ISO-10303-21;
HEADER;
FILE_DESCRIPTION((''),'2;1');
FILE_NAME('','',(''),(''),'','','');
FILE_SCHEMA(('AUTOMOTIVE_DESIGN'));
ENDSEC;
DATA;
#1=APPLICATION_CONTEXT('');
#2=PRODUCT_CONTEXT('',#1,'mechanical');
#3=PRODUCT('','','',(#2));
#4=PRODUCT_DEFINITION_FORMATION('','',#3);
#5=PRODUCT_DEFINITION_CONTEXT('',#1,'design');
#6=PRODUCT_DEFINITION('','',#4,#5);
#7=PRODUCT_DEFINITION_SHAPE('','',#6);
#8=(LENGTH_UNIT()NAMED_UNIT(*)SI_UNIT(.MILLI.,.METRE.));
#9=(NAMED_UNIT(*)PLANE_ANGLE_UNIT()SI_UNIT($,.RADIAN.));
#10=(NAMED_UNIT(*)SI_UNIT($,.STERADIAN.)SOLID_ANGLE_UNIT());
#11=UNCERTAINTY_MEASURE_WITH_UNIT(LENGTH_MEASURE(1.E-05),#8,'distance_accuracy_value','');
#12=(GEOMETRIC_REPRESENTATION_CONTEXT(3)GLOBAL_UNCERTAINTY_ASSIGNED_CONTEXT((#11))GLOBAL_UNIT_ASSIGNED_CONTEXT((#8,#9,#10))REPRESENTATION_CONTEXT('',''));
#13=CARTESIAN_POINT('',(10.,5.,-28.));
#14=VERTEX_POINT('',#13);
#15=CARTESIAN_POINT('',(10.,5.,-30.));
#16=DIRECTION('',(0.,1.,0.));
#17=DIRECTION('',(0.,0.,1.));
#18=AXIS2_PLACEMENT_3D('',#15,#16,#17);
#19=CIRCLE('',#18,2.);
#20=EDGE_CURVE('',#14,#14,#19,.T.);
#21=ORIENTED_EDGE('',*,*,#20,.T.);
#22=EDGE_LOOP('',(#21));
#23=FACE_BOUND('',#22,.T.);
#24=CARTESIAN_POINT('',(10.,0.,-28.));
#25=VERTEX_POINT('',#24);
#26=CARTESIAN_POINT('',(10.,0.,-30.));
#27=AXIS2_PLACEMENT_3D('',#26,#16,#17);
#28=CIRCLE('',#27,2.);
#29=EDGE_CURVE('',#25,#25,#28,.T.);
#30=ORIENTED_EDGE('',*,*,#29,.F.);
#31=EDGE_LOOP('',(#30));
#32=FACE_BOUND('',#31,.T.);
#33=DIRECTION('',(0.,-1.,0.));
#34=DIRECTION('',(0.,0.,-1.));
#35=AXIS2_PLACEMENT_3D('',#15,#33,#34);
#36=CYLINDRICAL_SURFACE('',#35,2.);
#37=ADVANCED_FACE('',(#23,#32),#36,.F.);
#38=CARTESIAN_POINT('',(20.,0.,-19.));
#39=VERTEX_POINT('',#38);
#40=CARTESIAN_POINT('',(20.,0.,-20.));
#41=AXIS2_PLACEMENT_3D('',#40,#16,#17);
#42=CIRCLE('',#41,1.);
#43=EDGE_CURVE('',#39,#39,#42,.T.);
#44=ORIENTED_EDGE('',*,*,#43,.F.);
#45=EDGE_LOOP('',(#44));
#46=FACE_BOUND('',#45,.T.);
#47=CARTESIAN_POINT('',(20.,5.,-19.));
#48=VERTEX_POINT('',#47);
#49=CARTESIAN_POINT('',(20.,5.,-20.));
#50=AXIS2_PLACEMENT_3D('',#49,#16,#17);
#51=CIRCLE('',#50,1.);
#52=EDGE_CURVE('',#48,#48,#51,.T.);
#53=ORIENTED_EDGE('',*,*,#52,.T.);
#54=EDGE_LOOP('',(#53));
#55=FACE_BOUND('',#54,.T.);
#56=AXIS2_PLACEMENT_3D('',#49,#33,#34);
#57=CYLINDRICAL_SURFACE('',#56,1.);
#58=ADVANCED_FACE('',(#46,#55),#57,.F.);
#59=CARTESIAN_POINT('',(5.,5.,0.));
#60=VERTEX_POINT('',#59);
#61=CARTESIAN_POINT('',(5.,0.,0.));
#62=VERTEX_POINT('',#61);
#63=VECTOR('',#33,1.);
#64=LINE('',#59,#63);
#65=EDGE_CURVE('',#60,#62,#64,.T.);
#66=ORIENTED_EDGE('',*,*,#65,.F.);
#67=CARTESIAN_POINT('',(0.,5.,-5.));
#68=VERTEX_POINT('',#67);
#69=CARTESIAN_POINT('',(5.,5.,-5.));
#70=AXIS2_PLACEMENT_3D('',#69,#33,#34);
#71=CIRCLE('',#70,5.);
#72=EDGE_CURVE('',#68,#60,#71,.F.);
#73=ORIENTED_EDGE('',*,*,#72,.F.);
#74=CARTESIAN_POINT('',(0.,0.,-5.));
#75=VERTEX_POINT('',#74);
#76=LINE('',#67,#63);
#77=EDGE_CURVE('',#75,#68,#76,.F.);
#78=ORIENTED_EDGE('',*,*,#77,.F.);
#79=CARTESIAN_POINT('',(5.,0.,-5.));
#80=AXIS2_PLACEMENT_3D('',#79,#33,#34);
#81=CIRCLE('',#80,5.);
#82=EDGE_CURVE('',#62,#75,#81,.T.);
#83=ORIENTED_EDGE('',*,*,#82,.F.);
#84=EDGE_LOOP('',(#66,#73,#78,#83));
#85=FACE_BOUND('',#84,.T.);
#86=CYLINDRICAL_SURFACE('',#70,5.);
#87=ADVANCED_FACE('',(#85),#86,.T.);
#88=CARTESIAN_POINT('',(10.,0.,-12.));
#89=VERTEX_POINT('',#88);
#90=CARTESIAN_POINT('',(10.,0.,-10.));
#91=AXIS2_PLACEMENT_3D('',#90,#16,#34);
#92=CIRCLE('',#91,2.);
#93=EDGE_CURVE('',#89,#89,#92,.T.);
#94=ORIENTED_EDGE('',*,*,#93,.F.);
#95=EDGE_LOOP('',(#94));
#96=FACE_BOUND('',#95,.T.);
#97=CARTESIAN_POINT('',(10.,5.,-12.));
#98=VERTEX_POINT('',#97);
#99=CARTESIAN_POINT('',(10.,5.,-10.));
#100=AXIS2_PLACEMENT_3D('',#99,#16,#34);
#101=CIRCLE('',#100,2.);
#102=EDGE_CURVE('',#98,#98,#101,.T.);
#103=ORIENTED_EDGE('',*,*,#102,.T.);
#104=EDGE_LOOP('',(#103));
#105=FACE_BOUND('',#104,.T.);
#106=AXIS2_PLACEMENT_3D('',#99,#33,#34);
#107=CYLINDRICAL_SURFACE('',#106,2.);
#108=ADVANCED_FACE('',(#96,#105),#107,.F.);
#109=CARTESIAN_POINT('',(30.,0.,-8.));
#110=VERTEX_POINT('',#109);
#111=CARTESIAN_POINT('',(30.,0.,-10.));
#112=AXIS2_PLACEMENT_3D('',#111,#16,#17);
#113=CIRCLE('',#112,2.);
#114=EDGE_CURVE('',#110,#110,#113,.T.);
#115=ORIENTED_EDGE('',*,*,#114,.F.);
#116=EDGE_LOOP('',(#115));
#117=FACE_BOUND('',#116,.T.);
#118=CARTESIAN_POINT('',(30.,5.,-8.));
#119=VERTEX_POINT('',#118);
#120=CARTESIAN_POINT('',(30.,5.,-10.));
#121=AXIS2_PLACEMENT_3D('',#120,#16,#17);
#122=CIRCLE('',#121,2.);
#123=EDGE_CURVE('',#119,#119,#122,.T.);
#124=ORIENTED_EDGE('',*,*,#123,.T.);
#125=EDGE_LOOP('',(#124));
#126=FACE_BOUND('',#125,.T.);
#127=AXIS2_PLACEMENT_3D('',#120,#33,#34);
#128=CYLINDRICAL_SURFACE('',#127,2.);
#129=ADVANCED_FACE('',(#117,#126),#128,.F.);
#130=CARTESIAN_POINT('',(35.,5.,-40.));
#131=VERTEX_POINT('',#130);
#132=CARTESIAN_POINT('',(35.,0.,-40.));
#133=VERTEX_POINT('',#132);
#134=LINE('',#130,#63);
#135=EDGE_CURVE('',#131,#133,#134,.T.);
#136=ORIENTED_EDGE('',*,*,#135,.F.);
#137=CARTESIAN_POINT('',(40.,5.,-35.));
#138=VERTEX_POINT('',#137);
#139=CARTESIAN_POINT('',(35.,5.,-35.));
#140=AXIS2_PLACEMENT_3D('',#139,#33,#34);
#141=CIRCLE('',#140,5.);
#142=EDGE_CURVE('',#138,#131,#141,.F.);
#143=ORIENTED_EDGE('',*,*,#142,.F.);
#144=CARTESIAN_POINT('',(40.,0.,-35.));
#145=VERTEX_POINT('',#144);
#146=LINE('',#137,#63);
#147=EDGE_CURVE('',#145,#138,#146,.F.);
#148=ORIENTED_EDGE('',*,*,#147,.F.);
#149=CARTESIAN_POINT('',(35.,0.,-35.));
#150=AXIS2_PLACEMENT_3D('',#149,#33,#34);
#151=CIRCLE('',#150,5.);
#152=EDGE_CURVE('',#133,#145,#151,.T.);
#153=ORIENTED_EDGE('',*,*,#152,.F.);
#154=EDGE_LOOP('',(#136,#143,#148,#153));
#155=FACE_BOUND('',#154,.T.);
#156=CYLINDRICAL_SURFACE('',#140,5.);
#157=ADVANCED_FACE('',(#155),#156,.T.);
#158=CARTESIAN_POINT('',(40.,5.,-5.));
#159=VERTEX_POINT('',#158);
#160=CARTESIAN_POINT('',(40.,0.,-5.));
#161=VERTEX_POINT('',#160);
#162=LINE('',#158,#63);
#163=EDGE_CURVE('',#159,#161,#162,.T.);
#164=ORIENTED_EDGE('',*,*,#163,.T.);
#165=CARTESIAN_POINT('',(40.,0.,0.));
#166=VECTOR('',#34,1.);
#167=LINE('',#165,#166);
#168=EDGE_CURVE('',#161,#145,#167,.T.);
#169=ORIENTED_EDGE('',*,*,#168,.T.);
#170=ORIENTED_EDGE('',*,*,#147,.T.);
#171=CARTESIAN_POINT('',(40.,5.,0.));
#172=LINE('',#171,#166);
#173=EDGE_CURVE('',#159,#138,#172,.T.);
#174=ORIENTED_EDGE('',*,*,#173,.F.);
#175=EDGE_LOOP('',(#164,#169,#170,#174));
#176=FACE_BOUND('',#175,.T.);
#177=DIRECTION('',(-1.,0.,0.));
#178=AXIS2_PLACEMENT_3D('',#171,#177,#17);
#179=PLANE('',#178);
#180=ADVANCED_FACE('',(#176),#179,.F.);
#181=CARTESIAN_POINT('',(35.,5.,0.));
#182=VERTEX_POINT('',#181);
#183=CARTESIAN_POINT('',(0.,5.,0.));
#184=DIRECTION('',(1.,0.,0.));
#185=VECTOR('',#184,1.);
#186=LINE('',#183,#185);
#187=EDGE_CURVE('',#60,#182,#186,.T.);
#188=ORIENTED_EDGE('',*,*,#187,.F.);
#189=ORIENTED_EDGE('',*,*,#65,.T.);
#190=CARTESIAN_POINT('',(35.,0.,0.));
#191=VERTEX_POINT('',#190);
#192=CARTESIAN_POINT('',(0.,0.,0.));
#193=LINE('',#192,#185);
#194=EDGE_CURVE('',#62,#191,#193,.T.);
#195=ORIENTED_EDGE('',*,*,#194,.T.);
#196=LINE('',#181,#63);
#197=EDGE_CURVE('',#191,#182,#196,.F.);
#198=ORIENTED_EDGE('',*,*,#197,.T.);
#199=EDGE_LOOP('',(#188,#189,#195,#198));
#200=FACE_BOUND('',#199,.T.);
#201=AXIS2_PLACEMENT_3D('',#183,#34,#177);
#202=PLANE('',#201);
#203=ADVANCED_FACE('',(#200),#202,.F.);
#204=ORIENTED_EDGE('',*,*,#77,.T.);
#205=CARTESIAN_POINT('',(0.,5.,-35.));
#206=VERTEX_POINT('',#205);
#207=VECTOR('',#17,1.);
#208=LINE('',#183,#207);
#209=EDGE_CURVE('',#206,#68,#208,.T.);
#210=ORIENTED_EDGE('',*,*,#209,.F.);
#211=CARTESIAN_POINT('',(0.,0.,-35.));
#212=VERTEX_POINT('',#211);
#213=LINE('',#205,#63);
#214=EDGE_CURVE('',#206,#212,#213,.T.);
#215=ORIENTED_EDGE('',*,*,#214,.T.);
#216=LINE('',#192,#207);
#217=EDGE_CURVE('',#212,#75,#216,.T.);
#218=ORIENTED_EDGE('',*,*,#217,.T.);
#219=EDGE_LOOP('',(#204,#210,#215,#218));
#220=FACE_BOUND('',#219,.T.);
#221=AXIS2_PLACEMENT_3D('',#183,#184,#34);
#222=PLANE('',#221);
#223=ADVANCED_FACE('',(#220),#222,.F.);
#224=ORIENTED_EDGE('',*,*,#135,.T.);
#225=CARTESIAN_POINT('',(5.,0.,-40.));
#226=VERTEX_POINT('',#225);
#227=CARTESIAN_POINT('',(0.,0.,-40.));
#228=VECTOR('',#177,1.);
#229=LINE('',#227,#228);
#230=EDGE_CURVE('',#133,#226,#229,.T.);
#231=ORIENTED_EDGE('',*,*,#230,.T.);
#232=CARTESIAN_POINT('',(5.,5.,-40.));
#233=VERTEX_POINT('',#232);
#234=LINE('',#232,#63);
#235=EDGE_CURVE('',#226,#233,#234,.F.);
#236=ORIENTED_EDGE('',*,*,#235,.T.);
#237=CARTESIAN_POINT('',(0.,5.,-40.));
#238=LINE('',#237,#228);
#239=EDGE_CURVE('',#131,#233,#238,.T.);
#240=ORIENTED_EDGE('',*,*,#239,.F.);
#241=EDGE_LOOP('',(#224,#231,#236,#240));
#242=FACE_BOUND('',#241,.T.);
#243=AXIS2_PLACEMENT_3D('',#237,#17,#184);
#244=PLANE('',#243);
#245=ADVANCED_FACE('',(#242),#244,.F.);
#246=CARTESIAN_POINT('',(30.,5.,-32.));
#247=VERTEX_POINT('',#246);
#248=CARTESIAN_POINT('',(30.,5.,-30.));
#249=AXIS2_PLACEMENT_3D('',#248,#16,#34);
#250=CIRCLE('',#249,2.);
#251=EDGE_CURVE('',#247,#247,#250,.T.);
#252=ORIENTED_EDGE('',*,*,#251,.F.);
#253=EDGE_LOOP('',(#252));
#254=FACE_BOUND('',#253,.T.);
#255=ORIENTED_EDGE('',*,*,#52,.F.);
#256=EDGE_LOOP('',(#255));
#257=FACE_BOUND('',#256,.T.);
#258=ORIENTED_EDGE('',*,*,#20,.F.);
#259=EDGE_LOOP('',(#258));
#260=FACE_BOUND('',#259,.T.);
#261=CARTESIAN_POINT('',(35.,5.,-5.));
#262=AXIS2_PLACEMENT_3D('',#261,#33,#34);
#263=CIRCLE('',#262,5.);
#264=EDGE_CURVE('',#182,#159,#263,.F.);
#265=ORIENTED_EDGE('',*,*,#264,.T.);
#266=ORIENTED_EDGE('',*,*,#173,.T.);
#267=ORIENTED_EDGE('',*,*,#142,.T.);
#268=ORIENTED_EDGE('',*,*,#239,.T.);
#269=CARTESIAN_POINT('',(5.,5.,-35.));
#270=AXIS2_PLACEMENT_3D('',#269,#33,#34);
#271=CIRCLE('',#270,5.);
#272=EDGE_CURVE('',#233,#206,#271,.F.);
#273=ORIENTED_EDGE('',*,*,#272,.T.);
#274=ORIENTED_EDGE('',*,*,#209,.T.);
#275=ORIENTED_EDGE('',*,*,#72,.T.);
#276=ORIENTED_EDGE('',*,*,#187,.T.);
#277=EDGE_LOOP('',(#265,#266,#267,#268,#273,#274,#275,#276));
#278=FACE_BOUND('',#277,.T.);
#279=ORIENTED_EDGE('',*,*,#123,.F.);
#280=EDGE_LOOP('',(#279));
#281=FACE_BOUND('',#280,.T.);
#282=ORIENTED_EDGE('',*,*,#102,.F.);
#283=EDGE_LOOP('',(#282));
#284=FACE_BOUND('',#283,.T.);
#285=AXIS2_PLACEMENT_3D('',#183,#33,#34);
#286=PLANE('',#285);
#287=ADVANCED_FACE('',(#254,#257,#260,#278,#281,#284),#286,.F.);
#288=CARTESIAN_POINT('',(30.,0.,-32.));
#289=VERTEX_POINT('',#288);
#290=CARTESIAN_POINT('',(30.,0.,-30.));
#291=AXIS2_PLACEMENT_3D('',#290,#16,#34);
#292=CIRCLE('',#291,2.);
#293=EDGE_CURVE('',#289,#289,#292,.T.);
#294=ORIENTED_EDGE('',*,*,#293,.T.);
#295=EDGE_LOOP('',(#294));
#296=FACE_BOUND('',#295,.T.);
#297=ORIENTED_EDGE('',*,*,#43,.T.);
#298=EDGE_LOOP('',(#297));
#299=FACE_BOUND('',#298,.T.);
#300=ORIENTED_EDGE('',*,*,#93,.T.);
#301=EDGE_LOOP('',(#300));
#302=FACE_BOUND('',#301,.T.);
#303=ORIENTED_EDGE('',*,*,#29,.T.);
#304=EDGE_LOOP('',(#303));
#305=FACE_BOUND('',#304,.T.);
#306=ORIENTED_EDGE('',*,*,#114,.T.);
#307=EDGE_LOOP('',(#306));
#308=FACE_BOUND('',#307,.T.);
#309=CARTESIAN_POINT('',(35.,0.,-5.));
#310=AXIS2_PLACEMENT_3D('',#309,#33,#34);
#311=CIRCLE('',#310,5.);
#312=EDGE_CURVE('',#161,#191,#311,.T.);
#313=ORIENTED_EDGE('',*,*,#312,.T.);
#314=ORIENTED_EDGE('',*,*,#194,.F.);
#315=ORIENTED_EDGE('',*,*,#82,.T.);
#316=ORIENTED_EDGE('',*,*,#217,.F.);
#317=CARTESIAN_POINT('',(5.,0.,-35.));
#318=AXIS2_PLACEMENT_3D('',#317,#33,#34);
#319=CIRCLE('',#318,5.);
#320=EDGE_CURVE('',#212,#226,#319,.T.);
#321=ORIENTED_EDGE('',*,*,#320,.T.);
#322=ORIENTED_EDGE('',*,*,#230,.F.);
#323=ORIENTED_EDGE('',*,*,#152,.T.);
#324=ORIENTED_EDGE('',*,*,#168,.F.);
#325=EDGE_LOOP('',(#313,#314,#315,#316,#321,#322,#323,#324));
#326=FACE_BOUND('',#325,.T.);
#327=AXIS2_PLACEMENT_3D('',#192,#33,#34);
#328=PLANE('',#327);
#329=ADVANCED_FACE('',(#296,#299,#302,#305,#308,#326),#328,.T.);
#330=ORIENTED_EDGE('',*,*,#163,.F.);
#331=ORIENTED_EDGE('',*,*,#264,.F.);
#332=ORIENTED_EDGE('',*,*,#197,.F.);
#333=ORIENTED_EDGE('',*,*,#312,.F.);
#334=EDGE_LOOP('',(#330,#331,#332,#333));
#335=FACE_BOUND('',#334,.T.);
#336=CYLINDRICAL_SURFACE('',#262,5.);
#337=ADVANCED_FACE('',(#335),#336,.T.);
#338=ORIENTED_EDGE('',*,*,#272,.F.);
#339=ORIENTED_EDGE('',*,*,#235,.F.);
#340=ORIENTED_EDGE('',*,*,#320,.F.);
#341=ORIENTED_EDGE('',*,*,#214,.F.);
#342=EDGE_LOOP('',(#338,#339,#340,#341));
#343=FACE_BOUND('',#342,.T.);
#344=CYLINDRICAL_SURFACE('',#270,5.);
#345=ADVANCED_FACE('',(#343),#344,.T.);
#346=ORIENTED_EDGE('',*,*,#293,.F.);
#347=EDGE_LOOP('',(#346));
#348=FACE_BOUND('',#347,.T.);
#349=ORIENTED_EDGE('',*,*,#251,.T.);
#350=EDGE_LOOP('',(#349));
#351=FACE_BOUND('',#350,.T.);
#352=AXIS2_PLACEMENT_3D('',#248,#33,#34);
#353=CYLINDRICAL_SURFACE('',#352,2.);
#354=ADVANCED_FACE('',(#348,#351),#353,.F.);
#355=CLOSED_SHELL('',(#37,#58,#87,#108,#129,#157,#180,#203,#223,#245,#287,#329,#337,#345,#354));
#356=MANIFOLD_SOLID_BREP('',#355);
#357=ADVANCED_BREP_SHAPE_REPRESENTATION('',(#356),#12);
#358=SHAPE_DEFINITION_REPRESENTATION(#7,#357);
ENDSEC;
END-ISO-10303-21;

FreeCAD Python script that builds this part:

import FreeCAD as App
import Part
import Sketcher
from FreeCAD import Vector


def edges_at(feature, points):
    """Names of the edges that pass closest to the given points."""
    edges = feature.Shape.Edges
    near = lambda p: min(range(len(edges)), key=lambda i: edges[i].distToShape(Part.Vertex(*p))[0])
    return sorted({f"Edge{near(p) + 1}" for p in points})

doc = App.newDocument("Part")
body = doc.addObject("PartDesign::Body", "Body")

sketch1 = body.newObject("Sketcher::SketchObject", "Sketch")
sketch1.AttachmentSupport = (doc.getObject("XZ_Plane"), [""])
sketch1.MapMode = "FlatFace"
sketch1.addGeometry(Part.LineSegment(Vector(0, -40, 0), Vector(0, 0, 0)), False)
sketch1.addGeometry(Part.LineSegment(Vector(0, 0, 0), Vector(40, 0, 0)), False)
sketch1.addGeometry(Part.LineSegment(Vector(40, 0, 0), Vector(40, -40, 0)), False)
sketch1.addGeometry(Part.LineSegment(Vector(40, -40, 0), Vector(0, -40, 0)), False)
sketch1.addGeometry(Part.Circle(Vector(10, -10, 0), Vector(0, 0, 1), 2), False)
sketch1.addGeometry(Part.Circle(Vector(30, -10, 0), Vector(0, 0, 1), 2), False)
sketch1.addGeometry(Part.Circle(Vector(10, -30, 0), Vector(0, 0, 1), 2), False)
sketch1.addGeometry(Part.Circle(Vector(20, -20, 0), Vector(0, 0, 1), 1), False)
sketch1.addGeometry(Part.Circle(Vector(30, -30, 0), Vector(0, 0, 1), 2), False)
sketch1.addConstraint(Sketcher.Constraint("Coincident", 0, 2, 1, 1))
sketch1.addConstraint(Sketcher.Constraint("Coincident", 1, 2, 2, 1))
sketch1.addConstraint(Sketcher.Constraint("Coincident", 2, 2, 3, 1))
sketch1.addConstraint(Sketcher.Constraint("Coincident", 3, 2, 0, 1))
sketch1.addConstraint(Sketcher.Constraint("Vertical", 0))
sketch1.addConstraint(Sketcher.Constraint("Horizontal", 1))
sketch1.addConstraint(Sketcher.Constraint("Vertical", 2))
sketch1.addConstraint(Sketcher.Constraint("Horizontal", 3))
sketch1.addConstraint(Sketcher.Constraint("Coincident", 0, 2, -1, 1))
sketch1.addConstraint(Sketcher.Constraint("Equal", 4, 5))
sketch1.addConstraint(Sketcher.Constraint("Equal", 5, 6))
sketch1.addConstraint(Sketcher.Constraint("Equal", 6, 8))
sketch1.addConstraint(Sketcher.Constraint("Horizontal", 4, 3, 5, 3))
sketch1.addConstraint(Sketcher.Constraint("Horizontal", 6, 3, 8, 3))
sketch1.addConstraint(Sketcher.Constraint("Vertical", 4, 3, 6, 3))
sketch1.addConstraint(Sketcher.Constraint("Vertical", 5, 3, 8, 3))
sketch1.addConstraint(Sketcher.Constraint("Equal", 3, 0))
sketch1.addConstraint(Sketcher.Constraint("Diameter", 4, 4.0))
sketch1.addConstraint(Sketcher.Constraint("Diameter", 7, 2.0))
sketch1.addConstraint(Sketcher.Constraint("DistanceX", 1, 1, 1, 2, 40.0))
sketch1.addConstraint(Sketcher.Constraint("DistanceX", -1, 1, 4, 3, 10.0))
sketch1.addConstraint(Sketcher.Constraint("DistanceY", 4, 3, -1, 1, 10.0))
sketch1.addConstraint(Sketcher.Constraint("DistanceX", -1, 1, 5, 3, 30.0))
sketch1.addConstraint(Sketcher.Constraint("DistanceY", 6, 3, -1, 1, 30.0))
sketch1.addConstraint(Sketcher.Constraint("DistanceX", -1, 1, 7, 3, 20.0))
sketch1.addConstraint(Sketcher.Constraint("DistanceY", 7, 3, -1, 1, 20.0))
pad1 = body.newObject("PartDesign::Pad", "Pad")
pad1.Profile = sketch1
pad1.Length = 5
pad1.Reversed = True
doc.recompute()

fillet = body.newObject("PartDesign::Fillet", "Fillet")
fillet.Base = (pad1, edges_at(pad1, [
    (0, 2.5, -40),
    (40, 2.5, -40),
    (40, 2.5, 0),
    (0, 2.5, 0),
]))
fillet.Radius = 5

doc.recompute()
